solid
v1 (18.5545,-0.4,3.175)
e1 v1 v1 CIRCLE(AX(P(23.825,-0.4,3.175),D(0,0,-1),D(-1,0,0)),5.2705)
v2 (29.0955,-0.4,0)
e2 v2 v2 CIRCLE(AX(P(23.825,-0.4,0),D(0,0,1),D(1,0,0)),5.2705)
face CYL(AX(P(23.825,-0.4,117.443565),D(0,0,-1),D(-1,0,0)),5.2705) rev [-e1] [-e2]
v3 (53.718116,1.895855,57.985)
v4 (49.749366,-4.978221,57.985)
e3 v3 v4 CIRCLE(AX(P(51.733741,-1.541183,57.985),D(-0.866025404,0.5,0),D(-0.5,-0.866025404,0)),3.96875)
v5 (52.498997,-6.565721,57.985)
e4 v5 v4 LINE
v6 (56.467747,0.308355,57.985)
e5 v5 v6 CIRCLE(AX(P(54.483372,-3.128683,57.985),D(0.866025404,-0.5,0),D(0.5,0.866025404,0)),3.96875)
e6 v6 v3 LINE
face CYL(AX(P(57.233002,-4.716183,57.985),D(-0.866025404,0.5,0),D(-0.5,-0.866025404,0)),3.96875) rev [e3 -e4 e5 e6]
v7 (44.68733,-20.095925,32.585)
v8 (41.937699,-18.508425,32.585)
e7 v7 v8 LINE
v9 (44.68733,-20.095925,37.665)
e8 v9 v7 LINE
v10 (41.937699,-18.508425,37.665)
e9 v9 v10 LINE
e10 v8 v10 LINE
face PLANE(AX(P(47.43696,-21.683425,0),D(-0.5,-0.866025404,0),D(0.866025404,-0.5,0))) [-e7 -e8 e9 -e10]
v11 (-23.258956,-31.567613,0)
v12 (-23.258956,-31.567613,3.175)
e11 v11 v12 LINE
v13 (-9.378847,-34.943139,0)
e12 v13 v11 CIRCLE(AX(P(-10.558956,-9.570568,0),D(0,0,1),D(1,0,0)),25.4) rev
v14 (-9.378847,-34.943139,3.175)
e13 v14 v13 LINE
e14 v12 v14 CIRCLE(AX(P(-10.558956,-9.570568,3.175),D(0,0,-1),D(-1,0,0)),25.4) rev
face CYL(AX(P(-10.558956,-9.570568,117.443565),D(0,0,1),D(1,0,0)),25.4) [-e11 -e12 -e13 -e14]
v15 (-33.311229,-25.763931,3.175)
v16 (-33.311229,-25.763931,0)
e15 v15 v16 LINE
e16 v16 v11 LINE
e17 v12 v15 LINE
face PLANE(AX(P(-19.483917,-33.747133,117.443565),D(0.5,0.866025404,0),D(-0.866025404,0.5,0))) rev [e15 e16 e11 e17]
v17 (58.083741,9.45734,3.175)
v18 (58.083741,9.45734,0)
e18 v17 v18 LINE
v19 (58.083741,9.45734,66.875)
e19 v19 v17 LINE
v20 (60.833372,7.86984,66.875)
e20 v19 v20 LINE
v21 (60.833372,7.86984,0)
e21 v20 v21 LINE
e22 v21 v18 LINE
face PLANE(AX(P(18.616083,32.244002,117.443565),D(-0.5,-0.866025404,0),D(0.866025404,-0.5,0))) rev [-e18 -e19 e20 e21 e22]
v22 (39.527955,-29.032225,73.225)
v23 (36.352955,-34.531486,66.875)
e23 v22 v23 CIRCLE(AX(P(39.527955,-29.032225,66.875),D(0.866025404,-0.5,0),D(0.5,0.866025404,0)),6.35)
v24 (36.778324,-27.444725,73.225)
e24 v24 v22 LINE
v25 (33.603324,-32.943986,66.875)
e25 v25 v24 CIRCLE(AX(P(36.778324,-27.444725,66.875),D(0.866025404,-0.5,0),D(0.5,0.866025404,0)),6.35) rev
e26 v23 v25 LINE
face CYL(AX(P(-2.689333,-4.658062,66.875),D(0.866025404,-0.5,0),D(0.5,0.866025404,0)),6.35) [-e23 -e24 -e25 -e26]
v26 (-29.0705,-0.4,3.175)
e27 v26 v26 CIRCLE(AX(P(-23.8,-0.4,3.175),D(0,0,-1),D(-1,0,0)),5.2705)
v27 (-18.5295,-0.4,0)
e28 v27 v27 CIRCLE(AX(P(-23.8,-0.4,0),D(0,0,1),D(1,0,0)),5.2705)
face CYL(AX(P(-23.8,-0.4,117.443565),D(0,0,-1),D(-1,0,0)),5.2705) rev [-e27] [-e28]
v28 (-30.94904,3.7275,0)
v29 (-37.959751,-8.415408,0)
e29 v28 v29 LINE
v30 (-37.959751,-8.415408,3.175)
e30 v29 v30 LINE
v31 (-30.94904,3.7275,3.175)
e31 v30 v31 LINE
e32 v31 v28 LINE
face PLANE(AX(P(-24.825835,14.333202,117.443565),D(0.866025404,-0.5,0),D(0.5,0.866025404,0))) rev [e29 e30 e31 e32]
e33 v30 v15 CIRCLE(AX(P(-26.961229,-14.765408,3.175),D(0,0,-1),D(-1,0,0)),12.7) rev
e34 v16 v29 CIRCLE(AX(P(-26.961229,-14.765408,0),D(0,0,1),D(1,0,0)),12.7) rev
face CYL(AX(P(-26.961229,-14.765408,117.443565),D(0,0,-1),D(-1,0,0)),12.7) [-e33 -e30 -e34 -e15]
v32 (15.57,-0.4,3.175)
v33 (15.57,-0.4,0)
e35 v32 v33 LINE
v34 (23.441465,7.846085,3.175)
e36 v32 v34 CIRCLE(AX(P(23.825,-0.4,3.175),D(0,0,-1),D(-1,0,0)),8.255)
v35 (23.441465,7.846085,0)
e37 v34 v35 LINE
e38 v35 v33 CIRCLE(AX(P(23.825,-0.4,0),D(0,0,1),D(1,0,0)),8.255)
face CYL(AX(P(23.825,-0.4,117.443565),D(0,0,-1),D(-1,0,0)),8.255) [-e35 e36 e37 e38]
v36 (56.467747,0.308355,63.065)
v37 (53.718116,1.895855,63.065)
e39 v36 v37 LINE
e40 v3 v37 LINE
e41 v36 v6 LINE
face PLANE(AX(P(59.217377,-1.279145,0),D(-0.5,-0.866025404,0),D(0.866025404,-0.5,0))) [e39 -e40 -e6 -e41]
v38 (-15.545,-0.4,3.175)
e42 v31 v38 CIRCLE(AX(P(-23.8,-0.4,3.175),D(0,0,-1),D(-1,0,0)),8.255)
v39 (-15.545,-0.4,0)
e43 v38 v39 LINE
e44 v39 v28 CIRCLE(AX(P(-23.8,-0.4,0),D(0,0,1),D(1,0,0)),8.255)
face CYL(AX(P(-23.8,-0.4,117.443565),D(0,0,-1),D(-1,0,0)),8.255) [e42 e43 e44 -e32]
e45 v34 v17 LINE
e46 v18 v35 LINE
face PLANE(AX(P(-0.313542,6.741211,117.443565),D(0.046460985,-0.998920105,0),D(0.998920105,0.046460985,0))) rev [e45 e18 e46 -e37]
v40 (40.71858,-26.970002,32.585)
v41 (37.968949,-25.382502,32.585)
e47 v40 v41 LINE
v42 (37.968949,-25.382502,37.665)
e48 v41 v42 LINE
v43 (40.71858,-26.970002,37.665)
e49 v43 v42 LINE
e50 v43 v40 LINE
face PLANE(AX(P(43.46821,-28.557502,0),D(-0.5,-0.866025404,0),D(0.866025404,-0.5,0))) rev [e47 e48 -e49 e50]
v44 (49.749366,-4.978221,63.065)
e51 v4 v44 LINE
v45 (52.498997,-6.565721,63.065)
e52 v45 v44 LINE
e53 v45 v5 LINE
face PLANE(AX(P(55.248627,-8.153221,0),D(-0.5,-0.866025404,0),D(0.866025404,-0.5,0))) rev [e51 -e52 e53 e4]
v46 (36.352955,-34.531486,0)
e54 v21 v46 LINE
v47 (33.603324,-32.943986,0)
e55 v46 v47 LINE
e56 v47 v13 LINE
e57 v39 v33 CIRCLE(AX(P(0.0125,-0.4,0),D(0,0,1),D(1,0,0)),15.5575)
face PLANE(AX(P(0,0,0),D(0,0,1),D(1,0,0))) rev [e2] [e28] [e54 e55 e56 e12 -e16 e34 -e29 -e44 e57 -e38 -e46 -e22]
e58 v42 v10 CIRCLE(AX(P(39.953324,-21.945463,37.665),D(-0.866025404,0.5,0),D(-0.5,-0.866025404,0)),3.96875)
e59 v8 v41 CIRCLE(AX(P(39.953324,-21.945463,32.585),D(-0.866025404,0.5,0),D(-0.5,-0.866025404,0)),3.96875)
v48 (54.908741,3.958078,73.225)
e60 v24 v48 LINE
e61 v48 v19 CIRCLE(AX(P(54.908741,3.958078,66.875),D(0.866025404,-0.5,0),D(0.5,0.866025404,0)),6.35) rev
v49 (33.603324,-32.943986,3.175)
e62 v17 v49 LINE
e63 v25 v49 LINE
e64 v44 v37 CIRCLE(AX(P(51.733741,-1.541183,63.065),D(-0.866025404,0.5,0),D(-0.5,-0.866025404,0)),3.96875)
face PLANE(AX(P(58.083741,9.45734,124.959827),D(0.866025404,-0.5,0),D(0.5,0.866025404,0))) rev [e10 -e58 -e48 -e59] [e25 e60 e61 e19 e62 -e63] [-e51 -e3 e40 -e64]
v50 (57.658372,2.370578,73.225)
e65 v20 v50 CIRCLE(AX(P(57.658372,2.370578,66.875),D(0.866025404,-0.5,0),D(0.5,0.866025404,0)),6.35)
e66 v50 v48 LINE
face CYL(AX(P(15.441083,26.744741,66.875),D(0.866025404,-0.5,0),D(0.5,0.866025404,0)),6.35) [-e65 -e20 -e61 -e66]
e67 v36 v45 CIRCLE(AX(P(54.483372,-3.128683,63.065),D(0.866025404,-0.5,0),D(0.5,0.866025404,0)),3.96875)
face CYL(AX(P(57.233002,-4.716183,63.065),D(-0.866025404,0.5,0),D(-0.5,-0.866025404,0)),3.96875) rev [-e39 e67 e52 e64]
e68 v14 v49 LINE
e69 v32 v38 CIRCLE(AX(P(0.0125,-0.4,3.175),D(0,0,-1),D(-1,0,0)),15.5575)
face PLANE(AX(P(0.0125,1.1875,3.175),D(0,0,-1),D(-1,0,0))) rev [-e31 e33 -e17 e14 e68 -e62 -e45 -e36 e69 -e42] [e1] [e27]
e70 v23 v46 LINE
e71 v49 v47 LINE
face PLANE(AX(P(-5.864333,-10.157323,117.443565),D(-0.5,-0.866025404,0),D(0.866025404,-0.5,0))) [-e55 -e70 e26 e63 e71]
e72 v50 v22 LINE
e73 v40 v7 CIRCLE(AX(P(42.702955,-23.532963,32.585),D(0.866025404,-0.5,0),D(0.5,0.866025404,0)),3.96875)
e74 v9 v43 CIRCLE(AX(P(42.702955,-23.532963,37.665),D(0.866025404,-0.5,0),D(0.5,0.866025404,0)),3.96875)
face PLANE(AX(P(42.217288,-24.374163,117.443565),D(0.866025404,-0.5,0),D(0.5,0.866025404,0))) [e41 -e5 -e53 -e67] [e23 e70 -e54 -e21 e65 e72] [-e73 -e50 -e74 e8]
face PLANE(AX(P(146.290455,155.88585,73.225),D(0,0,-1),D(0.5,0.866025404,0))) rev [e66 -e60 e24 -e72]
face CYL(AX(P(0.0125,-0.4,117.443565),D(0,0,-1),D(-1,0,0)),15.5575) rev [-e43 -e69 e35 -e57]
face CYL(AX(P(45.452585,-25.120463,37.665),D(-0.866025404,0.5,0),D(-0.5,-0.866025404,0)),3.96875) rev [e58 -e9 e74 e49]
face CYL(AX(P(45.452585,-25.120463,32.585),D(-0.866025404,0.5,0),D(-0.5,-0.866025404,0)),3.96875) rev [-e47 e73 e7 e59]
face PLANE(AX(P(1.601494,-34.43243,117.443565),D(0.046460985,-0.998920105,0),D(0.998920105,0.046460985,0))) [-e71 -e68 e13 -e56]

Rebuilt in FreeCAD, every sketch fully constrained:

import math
import FreeCAD as App
import Part
import Sketcher
from FreeCAD import Vector
Q = App.Units.Quantity


def edges_at(feature, points):
    """Names of the edges that pass closest to the given points."""
    edges = feature.Shape.Edges
    near = lambda p: min(range(len(edges)), key=lambda i: edges[i].distToShape(Part.Vertex(*p))[0])
    return sorted({f"Edge{near(p) + 1}" for p in points})


def add_polygon(sketch, points):
    """Adds a closed chain of lines whose ends are joined by coincident constraints."""
    first, n = sketch.GeometryCount, len(points)
    for a, b in zip(points, points[1:] + points[:1]):
        sketch.addGeometry(Part.LineSegment(App.Vector(*a, 0), App.Vector(*b, 0)), False)
    for i in range(n):
        sketch.addConstraint(Sketcher.Constraint("Coincident", first + i, 2, first + (i + 1) % n, 1))

doc = App.newDocument("Part")
body = doc.addObject("PartDesign::Body", "Body")

sketch1 = doc.addObject("Sketcher::SketchObject", "Sketch")
body.addObject(sketch1)
sketch1.AttachmentSupport = (doc.XY_Plane, [""])
sketch1.MapMode = "FlatFace"
sketch1.addGeometry(Part.LineSegment(Vector(-31.9, 2.1, 0), Vector(-44.3, -19.4, 0)), False)
sketch1.addGeometry(Part.LineSegment(Vector(-44.3, -19.4, 0), Vector(-16.8, -35.3, 0)), False)
sketch1.addGeometry(Part.LineSegment(Vector(-16.8, -35.3, 0), Vector(33.6, -32.9, 0)), False)
sketch1.addGeometry(Part.LineSegment(Vector(33.6, -32.9, 0), Vector(36.4, -34.5, 0)), False)
sketch1.addGeometry(Part.LineSegment(Vector(36.4, -34.5, 0), Vector(60.8, 7.9, 0)), False)
sketch1.addGeometry(Part.LineSegment(Vector(60.8, 7.9, 0), Vector(58.1, 9.5, 0)), False)
sketch1.addGeometry(Part.LineSegment(Vector(58.1, 9.5, 0), Vector(23.4, 7.8, 0)), False)
sketch1.addGeometry(Part.ArcOfCircle(Part.Circle(Vector(23.8, -0.4, 0), Vector(0, 0, 1), 8.3), math.radians(93), math.radians(180)), False)
sketch1.addGeometry(Part.ArcOfCircle(Part.Circle(Vector(0, -0.4, 0), Vector(0, 0, 1), 15.6), math.radians(-50), math.radians(0)), False)
sketch1.addGeometry(Part.ArcOfCircle(Part.Circle(Vector(0, -0.4, 0), Vector(0, 0, 1), 15.6), math.radians(-130), math.radians(-50)), False)
sketch1.addGeometry(Part.ArcOfCircle(Part.Circle(Vector(0, -0.4, 0), Vector(0, 0, 1), 15.6), math.radians(-180), math.radians(-130)), False)
sketch1.addGeometry(Part.ArcOfCircle(Part.Circle(Vector(-23.8, -0.4, 0), Vector(0, 0, 1), 8.3), math.radians(0), math.radians(150)), False)
sketch1.addGeometry(Part.LineSegment(Vector(-30.9, 3.7, 0), Vector(-31.9, 2.1, 0)), False)
sketch1.addGeometry(Part.Circle(Vector(-23.8, -0.4, 0), Vector(0, 0, 1), 5.3), False)
sketch1.addGeometry(Part.Circle(Vector(23.8, -0.4, 0), Vector(0, 0, 1), 5.3), False)
sketch1.addConstraint(Sketcher.Constraint("Coincident", 0, 2, 1, 1))
sketch1.addConstraint(Sketcher.Constraint("Coincident", 1, 2, 2, 1))
sketch1.addConstraint(Sketcher.Constraint("Coincident", 2, 2, 3, 1))
sketch1.addConstraint(Sketcher.Constraint("Coincident", 3, 2, 4, 1))
sketch1.addConstraint(Sketcher.Constraint("Coincident", 4, 2, 5, 1))
sketch1.addConstraint(Sketcher.Constraint("Coincident", 5, 2, 6, 1))
sketch1.addConstraint(Sketcher.Constraint("Tangent", 6, 2, 7, 1))
sketch1.addConstraint(Sketcher.Constraint("Tangent", 7, 2, 8, 2))
sketch1.addConstraint(Sketcher.Constraint("Tangent", 8, 1, 9, 2))
sketch1.addConstraint(Sketcher.Constraint("Tangent", 9, 1, 10, 2))
sketch1.addConstraint(Sketcher.Constraint("Tangent", 10, 1, 11, 1))
sketch1.addConstraint(Sketcher.Constraint("Tangent", 11, 2, 12, 1))
sketch1.addConstraint(Sketcher.Constraint("Coincident", 12, 2, 0, 1))
sketch1.addConstraint(Sketcher.Constraint("Coincident", 10, 3, 8, 3))
sketch1.addConstraint(Sketcher.Constraint("Coincident", 13, 3, 11, 3))
sketch1.addConstraint(Sketcher.Constraint("Coincident", 14, 3, 7, 3))
sketch1.addConstraint(Sketcher.Constraint("Equal", 7, 11))
sketch1.addConstraint(Sketcher.Constraint("Equal", 13, 14))
sketch1.addConstraint(Sketcher.Constraint("Perpendicular", 0, 1))
sketch1.addConstraint(Sketcher.Constraint("Parallel", 1, 3))
sketch1.addConstraint(Sketcher.Constraint("Perpendicular", 3, 4))
sketch1.addConstraint(Sketcher.Constraint("Perpendicular", 4, 5))
sketch1.addConstraint(Sketcher.Constraint("Parallel", 2, 6))
sketch1.addConstraint(Sketcher.Constraint("Perpendicular", 5, 12))
sketch1.addConstraint(Sketcher.Constraint("Horizontal", 7, 3, 8, 3))
sketch1.addConstraint(Sketcher.Constraint("Horizontal", 10, 3, 11, 3))
sketch1.addConstraint(Sketcher.Constraint("Equal", 3, 5))
sketch1.addConstraint(Sketcher.Constraint("Diameter", 13, Q("0.415 in")))
sketch1.addConstraint(Sketcher.Constraint("Angle", 0, Q("-120 deg")))
sketch1.addConstraint(Sketcher.Constraint("Radius", 7, Q("0.325 in")))
sketch1.addConstraint(Sketcher.Constraint("Radius", 8, Q("0.6125 in")))
sketch1.addConstraint(Sketcher.Constraint("Distance", 1, Q("1.25 in")))
sketch1.addConstraint(Sketcher.Constraint("Distance", 3, Q("0.125 in")))
sketch1.addConstraint(Sketcher.Constraint("DistanceX", 6, 2, 14, 3, Q("0.0150998 in")))
sketch1.addConstraint(Sketcher.Constraint("DistanceX", -1, 1, 7, 3, Q("23.825 mm")))
sketch1.addConstraint(Sketcher.Constraint("DistanceY", 7, 3, -1, 1, Q("0.4 mm")))
sketch1.addConstraint(Sketcher.Constraint("DistanceX", 12, 2, -1, 1, Q("31.875 mm")))
sketch1.addConstraint(Sketcher.Constraint("DistanceX", 0, 2, -1, 1, Q("44.309751 mm")))
sketch1.addConstraint(Sketcher.Constraint("DistanceX", -1, 1, 4, 2, Q("60.833372 mm")))
sketch1.addConstraint(Sketcher.Constraint("DistanceY", 8, 1, -1, 1, Q("12.371051 mm")))
sketch1.addConstraint(Sketcher.Constraint("DistanceY", 9, 1, -1, 1, Q("12.374792 mm")))
pad1 = doc.addObject("PartDesign::Pad", "Pad")
body.addObject(pad1)
pad1.Profile = sketch1
pad1.Length = Q("0.125 in")

sketch2 = doc.addObject("Sketcher::SketchObject", "Sketch001")
body.addObject(sketch2)
sketch2.AttachmentSupport = (doc.XY_Plane, [""])
sketch2.MapMode = "FlatFace"
sketch2.AttachmentOffset = App.Placement(Vector(0, 0, 0.125 * 25.4), App.Rotation())
add_polygon(sketch2, [(36.4, -34.5), (60.8, 7.9), (58.1, 9.5), (33.6, -32.9)])
sketch2.addConstraint(Sketcher.Constraint("Perpendicular", 0, 1))
sketch2.addConstraint(Sketcher.Constraint("Perpendicular", 1, 2))
sketch2.addConstraint(Sketcher.Constraint("Perpendicular", 2, 3))
sketch2.addConstraint(Sketcher.Constraint("Angle", 0, Q("60 deg")))
sketch2.addConstraint(Sketcher.Constraint("Distance", 1, Q("0.125 in")))
sketch2.addConstraint(Sketcher.Constraint("DistanceX", -1, 1, 0, 2, Q("60.833372 mm")))
sketch2.addConstraint(Sketcher.Constraint("DistanceY", -1, 1, 0, 2, Q("7.86984 mm")))
sketch2.addConstraint(Sketcher.Constraint("Distance", 0, Q("48.960834 mm")))
pad2 = doc.addObject("PartDesign::Pad", "Pad001")
body.addObject(pad2)
pad2.Profile = sketch2
pad2.Length = 70.05
doc.recompute()

fillet = doc.addObject("PartDesign::Fillet", "Fillet")
body.addObject(fillet)
fillet.Base = (pad2, edges_at(pad2, [(-44.31, -19.414, 1.587)]))
fillet.Radius = Q("0.5 in")
doc.recompute()

fillet2 = doc.addObject("PartDesign::Fillet", "Fillet001")
body.addObject(fillet2)
fillet2.Base = (fillet, edges_at(fillet, [(-16.813, -35.289, 1.587)]))
fillet2.Radius = Q("1 in")

sketch3 = doc.addObject("Sketcher::SketchObject", "Sketch002")
body.addObject(sketch3)
sketch3.Placement = App.Placement(Vector(39.467657, -22.786663, 0), App.Rotation(Vector(0, 0, 1), Vector(0.5, 0.866025404, 0), Vector(-0.866025404, 0.5, 0), "ZXY"))
sketch3.addGeometry(Part.LineSegment(Vector(58, 20.6, 0), Vector(63.1, 20.6, 0)), False)
sketch3.addGeometry(Part.ArcOfCircle(Part.Circle(Vector(63.1, 24.5, 0), Vector(0, 0, 1), 4), math.radians(-90), math.radians(90)), False)
sketch3.addGeometry(Part.LineSegment(Vector(63.1, 28.5, 0), Vector(58, 28.5, 0)), False)
sketch3.addGeometry(Part.ArcOfCircle(Part.Circle(Vector(58, 24.5, 0), Vector(0, 0, 1), 4), math.radians(90), math.radians(270)), False)
sketch3.addGeometry(Part.ArcOfCircle(Part.Circle(Vector(32.6, 1, 0), Vector(0, 0, 1), 4), math.radians(90), math.radians(270)), False)
sketch3.addGeometry(Part.LineSegment(Vector(32.6, -3, 0), Vector(37.7, -3, 0)), False)
sketch3.addGeometry(Part.ArcOfCircle(Part.Circle(Vector(37.7, 1, 0), Vector(0, 0, 1), 4), math.radians(-90), math.radians(90)), False)
sketch3.addGeometry(Part.LineSegment(Vector(37.7, 4.9, 0), Vector(32.6, 4.9, 0)), False)
sketch3.addConstraint(Sketcher.Constraint("Tangent", 0, 2, 1, 1))
sketch3.addConstraint(Sketcher.Constraint("Tangent", 1, 2, 2, 1))
sketch3.addConstraint(Sketcher.Constraint("Tangent", 2, 2, 3, 1))
sketch3.addConstraint(Sketcher.Constraint("Tangent", 3, 2, 0, 1))
sketch3.addConstraint(Sketcher.Constraint("Tangent", 4, 2, 5, 1))
sketch3.addConstraint(Sketcher.Constraint("Tangent", 5, 2, 6, 1))
sketch3.addConstraint(Sketcher.Constraint("Tangent", 6, 2, 7, 1))
sketch3.addConstraint(Sketcher.Constraint("Tangent", 7, 2, 4, 1))
sketch3.addConstraint(Sketcher.Constraint("Horizontal", 0))
sketch3.addConstraint(Sketcher.Constraint("Horizontal", 2))
sketch3.addConstraint(Sketcher.Constraint("Horizontal", 5))
sketch3.addConstraint(Sketcher.Constraint("Horizontal", 7))
sketch3.addConstraint(Sketcher.Constraint("Equal", 3, 4))
sketch3.addConstraint(Sketcher.Constraint("Equal", 2, 5))
sketch3.addConstraint(Sketcher.Constraint("DistanceX", 0, 1, 0, 2, Q("0.2 in")))
sketch3.addConstraint(Sketcher.Constraint("Radius", 1, Q("0.15625 in")))
sketch3.addConstraint(Sketcher.Constraint("DistanceX", 4, 3, 3, 3, Q("1 in")))
sketch3.addConstraint(Sketcher.Constraint("DistanceX", -1, 1, 1, 3, Q("63.065 mm")))
sketch3.addConstraint(Sketcher.Constraint("DistanceY", -1, 1, 1, 3, Q("24.532167 mm")))
sketch3.addConstraint(Sketcher.Constraint("DistanceY", -1, 1, 4, 3, Q("0.971333 mm")))
pocket1 = doc.addObject("PartDesign::Pocket", "Pocket")
body.addObject(pocket1)
pocket1.Profile = sketch3
pocket1.Length = Q("0.25 in")
doc.recompute()

fillet3 = doc.addObject("PartDesign::Fillet", "Fillet002")
body.addObject(fillet3)
fillet3.Base = (pocket1, edges_at(pocket1, [(34.978, -33.738, 73.225), (59.459, 8.664, 73.225)]))
fillet3.Radius = Q("0.25 in")

doc.recompute()
